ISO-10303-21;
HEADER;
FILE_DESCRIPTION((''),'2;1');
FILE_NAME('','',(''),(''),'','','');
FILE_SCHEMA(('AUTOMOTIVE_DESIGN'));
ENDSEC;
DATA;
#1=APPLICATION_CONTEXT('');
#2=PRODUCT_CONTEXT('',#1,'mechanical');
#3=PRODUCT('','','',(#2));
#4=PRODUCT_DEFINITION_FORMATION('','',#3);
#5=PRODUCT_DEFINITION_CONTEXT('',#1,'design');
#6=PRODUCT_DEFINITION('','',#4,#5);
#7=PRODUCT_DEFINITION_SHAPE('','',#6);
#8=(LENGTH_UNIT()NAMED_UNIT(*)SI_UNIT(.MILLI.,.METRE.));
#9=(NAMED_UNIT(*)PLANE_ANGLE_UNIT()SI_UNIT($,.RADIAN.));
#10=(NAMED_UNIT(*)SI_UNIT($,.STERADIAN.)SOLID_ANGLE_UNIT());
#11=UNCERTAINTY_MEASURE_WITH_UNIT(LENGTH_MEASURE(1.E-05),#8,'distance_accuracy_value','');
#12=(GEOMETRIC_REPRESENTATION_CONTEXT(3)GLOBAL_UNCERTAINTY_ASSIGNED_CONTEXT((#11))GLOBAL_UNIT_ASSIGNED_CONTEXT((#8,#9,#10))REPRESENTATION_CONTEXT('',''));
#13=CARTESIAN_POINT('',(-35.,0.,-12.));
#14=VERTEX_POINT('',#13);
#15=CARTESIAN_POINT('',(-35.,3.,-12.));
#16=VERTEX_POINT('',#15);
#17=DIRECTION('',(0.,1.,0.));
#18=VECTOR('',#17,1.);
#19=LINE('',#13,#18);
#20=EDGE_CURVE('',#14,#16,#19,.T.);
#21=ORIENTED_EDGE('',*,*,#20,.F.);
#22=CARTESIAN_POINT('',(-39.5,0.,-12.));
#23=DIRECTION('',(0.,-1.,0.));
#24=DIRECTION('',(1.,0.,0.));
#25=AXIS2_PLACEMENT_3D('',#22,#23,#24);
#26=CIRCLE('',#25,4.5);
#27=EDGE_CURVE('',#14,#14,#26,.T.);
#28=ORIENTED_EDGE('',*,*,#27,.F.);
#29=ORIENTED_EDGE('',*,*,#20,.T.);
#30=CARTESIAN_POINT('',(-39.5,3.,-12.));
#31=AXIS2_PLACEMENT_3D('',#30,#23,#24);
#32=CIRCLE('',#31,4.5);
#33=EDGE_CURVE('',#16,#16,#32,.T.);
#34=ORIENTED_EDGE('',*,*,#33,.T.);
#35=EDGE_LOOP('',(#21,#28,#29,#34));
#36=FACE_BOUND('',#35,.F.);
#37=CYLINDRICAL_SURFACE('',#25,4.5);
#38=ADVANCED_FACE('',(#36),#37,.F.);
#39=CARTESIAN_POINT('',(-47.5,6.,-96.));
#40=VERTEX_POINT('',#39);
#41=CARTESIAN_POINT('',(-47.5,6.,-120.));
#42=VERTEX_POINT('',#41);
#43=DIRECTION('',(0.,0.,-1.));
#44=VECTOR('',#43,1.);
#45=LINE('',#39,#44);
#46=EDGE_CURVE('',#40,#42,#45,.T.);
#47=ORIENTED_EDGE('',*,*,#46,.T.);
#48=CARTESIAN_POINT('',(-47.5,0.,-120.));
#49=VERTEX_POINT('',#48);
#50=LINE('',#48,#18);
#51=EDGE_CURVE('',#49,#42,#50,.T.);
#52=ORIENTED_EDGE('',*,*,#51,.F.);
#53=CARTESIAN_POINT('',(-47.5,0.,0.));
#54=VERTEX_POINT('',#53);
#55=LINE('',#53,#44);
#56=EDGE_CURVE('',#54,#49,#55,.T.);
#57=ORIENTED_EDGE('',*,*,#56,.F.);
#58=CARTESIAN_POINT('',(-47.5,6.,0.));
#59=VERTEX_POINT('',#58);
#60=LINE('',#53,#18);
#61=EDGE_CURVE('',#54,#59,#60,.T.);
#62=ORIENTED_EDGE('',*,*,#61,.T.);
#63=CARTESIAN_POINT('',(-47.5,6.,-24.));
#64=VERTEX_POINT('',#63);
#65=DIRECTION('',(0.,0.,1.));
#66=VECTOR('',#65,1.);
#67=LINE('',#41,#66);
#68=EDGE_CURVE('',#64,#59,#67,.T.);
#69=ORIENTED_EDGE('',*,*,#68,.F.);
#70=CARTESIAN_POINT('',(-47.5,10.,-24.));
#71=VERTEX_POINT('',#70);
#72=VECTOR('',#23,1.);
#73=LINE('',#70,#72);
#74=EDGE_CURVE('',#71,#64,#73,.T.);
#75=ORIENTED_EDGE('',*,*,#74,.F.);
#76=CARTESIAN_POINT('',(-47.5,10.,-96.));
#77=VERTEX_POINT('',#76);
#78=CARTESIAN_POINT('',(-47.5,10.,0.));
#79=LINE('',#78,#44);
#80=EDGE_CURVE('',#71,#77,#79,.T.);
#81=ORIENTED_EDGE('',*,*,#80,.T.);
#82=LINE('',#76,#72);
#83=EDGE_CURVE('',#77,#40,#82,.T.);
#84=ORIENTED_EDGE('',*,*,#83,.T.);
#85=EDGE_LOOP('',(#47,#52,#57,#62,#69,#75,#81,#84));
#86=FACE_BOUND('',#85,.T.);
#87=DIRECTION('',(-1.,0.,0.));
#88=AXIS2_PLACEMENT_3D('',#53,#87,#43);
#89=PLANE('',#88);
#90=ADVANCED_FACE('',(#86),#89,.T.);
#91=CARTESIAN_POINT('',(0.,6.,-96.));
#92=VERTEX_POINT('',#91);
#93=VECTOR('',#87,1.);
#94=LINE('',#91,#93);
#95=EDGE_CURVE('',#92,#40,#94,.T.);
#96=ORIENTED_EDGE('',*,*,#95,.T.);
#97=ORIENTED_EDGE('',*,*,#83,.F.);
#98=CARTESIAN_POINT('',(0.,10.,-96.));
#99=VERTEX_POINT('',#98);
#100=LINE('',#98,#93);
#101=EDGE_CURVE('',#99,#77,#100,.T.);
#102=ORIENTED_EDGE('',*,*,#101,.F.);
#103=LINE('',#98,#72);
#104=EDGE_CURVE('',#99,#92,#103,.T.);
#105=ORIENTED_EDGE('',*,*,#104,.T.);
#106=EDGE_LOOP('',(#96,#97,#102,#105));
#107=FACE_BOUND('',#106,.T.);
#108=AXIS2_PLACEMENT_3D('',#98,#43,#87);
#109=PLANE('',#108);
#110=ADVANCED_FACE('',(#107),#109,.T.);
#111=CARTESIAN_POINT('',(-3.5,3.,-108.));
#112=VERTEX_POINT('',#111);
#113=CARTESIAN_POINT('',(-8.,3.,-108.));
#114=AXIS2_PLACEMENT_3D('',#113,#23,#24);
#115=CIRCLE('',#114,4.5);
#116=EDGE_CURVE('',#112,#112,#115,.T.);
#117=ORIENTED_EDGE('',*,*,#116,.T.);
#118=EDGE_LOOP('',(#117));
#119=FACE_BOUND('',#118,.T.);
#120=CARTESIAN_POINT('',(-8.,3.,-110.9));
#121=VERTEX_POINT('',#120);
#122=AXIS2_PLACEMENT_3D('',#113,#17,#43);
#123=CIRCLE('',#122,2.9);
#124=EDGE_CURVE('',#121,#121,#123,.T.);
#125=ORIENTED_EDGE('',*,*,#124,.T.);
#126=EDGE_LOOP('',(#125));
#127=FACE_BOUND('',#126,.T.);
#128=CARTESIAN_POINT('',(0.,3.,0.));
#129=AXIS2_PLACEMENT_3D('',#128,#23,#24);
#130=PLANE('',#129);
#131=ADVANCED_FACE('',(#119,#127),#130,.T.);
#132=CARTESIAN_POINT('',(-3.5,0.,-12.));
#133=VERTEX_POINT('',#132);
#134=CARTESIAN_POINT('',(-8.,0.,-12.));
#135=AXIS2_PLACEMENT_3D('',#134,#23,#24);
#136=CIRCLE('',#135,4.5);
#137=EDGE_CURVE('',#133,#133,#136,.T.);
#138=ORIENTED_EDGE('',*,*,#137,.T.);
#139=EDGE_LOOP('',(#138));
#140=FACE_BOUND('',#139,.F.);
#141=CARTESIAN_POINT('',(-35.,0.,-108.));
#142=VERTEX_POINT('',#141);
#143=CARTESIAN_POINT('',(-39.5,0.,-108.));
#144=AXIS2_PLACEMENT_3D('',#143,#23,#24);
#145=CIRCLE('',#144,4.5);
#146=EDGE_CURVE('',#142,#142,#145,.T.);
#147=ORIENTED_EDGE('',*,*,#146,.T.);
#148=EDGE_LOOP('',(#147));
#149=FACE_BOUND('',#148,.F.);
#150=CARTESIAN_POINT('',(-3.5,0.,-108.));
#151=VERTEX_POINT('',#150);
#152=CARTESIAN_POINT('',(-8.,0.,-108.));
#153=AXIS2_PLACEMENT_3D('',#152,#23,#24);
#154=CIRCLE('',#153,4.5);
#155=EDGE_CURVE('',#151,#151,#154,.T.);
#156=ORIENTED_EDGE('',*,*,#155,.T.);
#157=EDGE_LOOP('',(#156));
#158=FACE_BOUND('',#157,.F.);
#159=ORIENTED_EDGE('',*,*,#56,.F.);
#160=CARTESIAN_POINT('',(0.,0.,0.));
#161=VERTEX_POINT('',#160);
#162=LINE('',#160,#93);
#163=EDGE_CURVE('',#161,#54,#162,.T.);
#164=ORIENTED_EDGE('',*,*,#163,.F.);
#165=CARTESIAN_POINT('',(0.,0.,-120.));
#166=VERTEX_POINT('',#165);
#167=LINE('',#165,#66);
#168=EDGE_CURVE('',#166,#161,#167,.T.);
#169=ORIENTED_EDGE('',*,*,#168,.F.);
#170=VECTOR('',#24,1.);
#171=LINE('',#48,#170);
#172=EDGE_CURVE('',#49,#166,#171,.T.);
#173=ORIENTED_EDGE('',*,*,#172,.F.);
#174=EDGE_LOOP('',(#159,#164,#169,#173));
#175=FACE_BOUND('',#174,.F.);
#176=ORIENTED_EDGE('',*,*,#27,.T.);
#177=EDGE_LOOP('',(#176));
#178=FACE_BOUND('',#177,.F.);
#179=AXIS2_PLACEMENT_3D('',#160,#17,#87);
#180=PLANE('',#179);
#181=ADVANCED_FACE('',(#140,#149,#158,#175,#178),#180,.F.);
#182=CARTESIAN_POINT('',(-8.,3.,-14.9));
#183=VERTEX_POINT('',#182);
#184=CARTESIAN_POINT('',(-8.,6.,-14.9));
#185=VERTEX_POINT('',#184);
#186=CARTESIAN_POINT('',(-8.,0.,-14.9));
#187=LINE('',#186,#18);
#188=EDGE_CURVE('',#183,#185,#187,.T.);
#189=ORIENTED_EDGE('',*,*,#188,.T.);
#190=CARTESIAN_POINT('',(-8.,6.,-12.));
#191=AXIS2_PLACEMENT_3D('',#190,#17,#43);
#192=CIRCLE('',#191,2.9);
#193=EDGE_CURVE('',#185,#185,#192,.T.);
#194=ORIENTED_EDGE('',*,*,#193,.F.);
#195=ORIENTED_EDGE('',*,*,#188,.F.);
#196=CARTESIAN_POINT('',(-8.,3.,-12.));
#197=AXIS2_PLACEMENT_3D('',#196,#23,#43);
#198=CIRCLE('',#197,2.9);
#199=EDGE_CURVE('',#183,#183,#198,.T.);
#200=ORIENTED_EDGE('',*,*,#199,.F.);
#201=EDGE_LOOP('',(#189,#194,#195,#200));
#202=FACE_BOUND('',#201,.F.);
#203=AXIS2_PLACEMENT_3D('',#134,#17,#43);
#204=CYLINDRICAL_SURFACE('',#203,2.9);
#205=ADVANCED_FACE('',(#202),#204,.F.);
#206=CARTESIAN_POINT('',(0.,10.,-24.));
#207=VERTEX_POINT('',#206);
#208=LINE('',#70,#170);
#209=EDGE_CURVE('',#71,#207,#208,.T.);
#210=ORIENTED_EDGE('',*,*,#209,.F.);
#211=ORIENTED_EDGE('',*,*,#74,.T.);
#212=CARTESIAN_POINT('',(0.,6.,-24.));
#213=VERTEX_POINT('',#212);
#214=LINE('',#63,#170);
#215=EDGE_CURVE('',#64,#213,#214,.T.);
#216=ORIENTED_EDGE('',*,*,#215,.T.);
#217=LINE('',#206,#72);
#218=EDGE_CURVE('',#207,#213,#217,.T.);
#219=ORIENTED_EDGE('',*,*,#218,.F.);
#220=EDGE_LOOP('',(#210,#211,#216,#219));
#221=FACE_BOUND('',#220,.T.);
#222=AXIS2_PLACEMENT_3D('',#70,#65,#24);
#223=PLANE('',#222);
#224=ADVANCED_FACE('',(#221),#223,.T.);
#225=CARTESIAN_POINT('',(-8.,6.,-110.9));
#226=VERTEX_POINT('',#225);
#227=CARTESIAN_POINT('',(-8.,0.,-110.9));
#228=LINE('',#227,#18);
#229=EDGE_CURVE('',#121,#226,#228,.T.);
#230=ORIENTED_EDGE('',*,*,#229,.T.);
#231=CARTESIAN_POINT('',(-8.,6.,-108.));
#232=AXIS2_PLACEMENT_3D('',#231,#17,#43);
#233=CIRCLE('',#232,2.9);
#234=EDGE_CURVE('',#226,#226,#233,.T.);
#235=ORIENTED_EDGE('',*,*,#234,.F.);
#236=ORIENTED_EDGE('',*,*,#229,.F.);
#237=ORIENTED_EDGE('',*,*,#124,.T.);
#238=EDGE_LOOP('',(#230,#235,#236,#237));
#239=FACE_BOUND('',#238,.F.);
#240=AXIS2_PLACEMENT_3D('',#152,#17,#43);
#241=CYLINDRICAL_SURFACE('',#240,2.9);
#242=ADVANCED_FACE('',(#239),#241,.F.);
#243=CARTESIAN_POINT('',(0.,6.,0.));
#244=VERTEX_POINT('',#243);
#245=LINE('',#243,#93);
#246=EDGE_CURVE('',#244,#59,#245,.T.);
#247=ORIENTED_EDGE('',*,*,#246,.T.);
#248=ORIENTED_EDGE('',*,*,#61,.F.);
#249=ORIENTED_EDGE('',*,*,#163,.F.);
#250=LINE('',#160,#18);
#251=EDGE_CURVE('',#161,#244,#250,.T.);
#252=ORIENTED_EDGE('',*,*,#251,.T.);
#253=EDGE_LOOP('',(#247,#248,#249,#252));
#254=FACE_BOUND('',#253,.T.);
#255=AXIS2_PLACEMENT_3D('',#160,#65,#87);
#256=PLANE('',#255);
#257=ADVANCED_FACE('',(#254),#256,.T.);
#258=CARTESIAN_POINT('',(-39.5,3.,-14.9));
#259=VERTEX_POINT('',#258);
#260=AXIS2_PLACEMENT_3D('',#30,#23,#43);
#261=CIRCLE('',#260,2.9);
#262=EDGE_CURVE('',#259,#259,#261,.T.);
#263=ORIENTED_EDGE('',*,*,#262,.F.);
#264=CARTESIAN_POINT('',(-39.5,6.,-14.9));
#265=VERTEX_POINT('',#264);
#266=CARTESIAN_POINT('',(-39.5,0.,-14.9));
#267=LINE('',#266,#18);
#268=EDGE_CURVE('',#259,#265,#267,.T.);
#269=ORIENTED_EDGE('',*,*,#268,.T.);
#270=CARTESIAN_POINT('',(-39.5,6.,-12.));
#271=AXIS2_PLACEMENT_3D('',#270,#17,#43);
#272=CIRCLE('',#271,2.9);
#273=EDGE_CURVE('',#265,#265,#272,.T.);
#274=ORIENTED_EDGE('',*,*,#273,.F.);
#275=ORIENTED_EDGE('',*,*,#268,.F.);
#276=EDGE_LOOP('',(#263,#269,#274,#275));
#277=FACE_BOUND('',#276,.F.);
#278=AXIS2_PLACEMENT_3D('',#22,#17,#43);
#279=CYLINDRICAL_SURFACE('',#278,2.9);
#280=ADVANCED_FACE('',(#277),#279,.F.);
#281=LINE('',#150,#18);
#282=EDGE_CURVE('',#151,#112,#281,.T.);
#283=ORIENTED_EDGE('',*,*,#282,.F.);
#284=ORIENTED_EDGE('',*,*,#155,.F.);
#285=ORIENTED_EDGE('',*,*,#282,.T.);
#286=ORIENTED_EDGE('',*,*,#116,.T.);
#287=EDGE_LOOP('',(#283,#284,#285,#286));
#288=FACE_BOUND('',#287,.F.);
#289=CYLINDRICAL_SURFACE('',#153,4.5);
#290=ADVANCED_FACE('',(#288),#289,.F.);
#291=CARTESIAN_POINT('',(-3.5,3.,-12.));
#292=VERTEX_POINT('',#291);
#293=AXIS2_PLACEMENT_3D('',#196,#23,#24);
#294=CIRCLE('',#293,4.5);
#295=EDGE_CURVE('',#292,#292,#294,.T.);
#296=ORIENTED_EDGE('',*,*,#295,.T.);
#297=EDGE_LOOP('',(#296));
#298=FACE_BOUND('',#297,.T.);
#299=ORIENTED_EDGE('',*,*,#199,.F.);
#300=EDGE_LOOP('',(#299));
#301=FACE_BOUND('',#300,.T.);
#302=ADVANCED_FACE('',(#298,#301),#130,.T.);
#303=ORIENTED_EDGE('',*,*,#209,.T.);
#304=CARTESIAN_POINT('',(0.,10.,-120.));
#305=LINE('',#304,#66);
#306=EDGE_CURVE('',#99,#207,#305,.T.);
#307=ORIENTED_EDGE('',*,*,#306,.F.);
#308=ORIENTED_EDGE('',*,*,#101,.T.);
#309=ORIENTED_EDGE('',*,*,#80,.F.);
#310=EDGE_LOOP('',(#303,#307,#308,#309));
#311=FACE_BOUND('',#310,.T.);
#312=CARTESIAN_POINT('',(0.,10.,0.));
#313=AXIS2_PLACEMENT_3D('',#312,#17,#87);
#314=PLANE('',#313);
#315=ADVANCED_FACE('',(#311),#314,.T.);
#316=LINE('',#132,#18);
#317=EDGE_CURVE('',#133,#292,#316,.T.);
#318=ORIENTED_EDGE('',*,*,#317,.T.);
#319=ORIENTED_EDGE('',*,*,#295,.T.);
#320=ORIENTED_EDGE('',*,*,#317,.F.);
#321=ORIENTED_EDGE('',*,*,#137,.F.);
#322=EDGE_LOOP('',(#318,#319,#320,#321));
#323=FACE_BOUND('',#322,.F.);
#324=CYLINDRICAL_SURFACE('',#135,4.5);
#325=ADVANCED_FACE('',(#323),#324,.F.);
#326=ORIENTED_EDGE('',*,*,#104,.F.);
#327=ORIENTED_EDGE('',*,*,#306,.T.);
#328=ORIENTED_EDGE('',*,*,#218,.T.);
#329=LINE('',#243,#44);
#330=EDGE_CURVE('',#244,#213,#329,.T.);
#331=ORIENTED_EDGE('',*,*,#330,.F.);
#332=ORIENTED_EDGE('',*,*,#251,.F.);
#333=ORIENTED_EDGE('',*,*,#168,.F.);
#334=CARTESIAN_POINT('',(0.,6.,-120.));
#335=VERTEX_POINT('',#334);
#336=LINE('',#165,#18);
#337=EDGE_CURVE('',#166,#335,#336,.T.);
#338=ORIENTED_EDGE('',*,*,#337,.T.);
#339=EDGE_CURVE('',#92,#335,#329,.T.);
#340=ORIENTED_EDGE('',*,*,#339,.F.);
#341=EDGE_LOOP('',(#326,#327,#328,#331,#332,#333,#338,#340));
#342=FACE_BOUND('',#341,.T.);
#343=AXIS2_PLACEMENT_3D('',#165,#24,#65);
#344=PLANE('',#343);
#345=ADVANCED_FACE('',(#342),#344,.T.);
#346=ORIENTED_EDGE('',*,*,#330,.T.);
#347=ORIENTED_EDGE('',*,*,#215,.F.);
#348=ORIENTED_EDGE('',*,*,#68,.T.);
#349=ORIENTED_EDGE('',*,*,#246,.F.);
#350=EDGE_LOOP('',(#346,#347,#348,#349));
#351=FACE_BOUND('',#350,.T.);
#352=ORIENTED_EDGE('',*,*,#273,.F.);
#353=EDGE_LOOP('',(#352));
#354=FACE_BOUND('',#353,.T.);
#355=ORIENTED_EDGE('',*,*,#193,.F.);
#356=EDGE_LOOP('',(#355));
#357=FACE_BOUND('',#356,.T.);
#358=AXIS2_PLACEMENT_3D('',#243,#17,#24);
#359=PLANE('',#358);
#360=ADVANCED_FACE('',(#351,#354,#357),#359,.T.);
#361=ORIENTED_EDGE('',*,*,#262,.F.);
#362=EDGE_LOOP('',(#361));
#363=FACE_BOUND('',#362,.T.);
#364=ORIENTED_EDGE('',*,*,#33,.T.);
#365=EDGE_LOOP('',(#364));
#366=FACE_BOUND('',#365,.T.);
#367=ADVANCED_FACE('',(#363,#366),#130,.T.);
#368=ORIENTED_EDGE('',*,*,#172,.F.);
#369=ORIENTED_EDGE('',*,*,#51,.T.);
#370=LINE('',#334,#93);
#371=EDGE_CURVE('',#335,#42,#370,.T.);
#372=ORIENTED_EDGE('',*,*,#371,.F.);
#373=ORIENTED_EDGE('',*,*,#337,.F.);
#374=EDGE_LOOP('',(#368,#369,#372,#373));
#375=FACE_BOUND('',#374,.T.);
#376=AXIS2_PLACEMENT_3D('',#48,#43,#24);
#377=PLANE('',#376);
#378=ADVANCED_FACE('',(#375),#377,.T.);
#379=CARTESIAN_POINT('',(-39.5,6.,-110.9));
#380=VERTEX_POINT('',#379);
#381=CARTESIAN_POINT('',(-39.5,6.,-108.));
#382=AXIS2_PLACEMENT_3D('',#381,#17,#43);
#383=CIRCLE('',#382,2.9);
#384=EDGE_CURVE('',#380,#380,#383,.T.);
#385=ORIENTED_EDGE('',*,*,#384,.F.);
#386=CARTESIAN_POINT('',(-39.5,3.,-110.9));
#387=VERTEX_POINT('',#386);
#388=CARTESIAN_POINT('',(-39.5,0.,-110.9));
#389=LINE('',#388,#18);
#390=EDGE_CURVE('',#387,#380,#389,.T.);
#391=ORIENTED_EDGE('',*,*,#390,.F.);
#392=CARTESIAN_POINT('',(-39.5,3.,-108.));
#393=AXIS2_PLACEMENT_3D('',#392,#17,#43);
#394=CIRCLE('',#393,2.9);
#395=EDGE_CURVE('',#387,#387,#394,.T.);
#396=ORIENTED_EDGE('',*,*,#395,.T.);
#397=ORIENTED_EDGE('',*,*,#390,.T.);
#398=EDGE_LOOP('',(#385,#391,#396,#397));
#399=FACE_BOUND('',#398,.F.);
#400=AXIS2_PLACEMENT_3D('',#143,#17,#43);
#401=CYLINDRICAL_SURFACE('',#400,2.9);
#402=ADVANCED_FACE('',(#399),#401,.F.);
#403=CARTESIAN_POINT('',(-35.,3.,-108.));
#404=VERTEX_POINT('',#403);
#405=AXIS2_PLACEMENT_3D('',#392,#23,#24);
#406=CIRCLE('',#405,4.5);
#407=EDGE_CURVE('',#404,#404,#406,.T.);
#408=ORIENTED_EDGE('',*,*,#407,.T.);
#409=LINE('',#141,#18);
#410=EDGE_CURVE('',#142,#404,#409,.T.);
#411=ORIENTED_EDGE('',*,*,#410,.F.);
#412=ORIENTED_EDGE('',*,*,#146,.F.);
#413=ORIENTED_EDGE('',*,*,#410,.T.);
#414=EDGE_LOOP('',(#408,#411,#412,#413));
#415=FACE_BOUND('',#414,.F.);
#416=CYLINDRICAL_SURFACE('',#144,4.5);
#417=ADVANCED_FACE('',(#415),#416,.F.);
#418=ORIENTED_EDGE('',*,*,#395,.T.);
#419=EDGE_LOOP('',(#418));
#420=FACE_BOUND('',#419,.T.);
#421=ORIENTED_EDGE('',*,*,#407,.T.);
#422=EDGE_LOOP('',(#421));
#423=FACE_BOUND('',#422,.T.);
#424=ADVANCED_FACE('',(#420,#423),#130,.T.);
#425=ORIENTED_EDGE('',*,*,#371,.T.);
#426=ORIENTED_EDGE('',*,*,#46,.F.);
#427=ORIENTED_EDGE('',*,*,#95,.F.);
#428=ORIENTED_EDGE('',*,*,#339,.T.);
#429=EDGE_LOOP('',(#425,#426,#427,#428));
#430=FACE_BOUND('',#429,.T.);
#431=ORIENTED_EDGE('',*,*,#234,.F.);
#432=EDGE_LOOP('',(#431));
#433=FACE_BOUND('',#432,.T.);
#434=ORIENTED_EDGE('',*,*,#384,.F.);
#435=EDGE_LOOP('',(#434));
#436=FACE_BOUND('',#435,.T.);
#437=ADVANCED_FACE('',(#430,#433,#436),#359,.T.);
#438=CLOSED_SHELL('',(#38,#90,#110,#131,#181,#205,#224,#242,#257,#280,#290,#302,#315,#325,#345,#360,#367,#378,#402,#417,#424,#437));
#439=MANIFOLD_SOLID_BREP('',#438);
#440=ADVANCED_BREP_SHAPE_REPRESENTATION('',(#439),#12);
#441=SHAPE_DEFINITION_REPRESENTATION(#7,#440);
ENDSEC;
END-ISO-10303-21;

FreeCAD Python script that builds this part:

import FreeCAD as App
import Part
import Sketcher


def add_polygon(sketch, points):
    """Adds a closed chain of lines whose ends are joined by coincident constraints."""
    first, n = sketch.GeometryCount, len(points)
    for a, b in zip(points, points[1:] + points[:1]):
        sketch.addGeometry(Part.LineSegment(App.Vector(*a, 0), App.Vector(*b, 0)), False)
    for i in range(n):
        sketch.addConstraint(Sketcher.Constraint("Coincident", first + i, 2, first + (i + 1) % n, 1))

doc = App.newDocument("Part")
body = doc.addObject("PartDesign::Body", "Body")

# Sketch on XZ plane
sketch1 = body.newObject("Sketcher::SketchObject", "Sketch")
sketch1.AttachmentSupport = (doc.getObject("XZ_Plane"), [""])
sketch1.MapMode = "FlatFace"
add_polygon(sketch1, [(-48, 0), (0, 0), (0, -120), (-48, -120)])  # lines 0-3
sketch1.addConstraint([
    Sketcher.Constraint("Horizontal", 0),
    Sketcher.Constraint("Vertical", 1),
    Sketcher.Constraint("Horizontal", 2),
    Sketcher.Constraint("Vertical", 3),
    Sketcher.Constraint("Coincident", 0, 2, -1, 1),
    Sketcher.Constraint("DistanceY", 1, 2, 1, 1, 120.0),
    Sketcher.Constraint("DistanceX", 0, 1, 0, 2, 47.5),
])
pad1 = body.newObject("PartDesign::Pad", "Pad")
pad1.Profile = sketch1
pad1.Length = 10
pad1.Reversed = True

# Sketch on XZ plane
sketch2 = body.newObject("Sketcher::SketchObject", "Sketch001")
sketch2.AttachmentSupport = (doc.getObject("XZ_Plane"), [""])
sketch2.MapMode = "FlatFace"
sketch2.AttachmentOffset = App.Placement(App.Vector(0, 0, -10), App.Rotation())
add_polygon(sketch2, [(0, -96), (0, -120), (-48, -120), (-48, -96)])  # lines 0-3
add_polygon(sketch2, [(0, 0), (0, -24), (-48, -24), (-48, 0)])  # lines 4-7
sketch2.addConstraint([
    Sketcher.Constraint("Vertical", 0),
    Sketcher.Constraint("Horizontal", 1),
    Sketcher.Constraint("Vertical", 2),
    Sketcher.Constraint("Horizontal", 3),
    Sketcher.Constraint("Vertical", 4),
    Sketcher.Constraint("Horizontal", 5),
    Sketcher.Constraint("Vertical", 6),
    Sketcher.Constraint("Horizontal", 7),
    Sketcher.Constraint("Coincident", 7, 2, -1, 1),
    Sketcher.Constraint("PointOnObject", 0, 2, -2),
    Sketcher.Constraint("Vertical", 2, 2, 5, 2),
    Sketcher.Constraint("Equal", 2, 4),
    Sketcher.Constraint("DistanceY", 0, 2, 0, 1, 24.0),
    Sketcher.Constraint("DistanceY", 3, 2, 4, 2, 72.0),
    Sketcher.Constraint("DistanceX", 1, 2, 1, 1, 47.5),
])
pocket1 = body.newObject("PartDesign::Pocket", "Pocket")
pocket1.Profile = sketch2
pocket1.Length = 4
pocket1.Reversed = True

# Sketch on XZ plane
sketch3 = body.newObject("Sketcher::SketchObject", "Sketch002")
sketch3.AttachmentSupport = (doc.getObject("XZ_Plane"), [""])
sketch3.MapMode = "FlatFace"
sketch3.addGeometry([
    Part.Circle(App.Vector(-39.5, -12, 0), App.Vector(0, 0, 1), 2.9),
    Part.Circle(App.Vector(-8, -12, 0), App.Vector(0, 0, 1), 2.9),
    Part.Circle(App.Vector(-39.5, -108, 0), App.Vector(0, 0, 1), 2.9),
    Part.Circle(App.Vector(-8, -108, 0), App.Vector(0, 0, 1), 2.9),
], False)
sketch3.addConstraint([
    Sketcher.Constraint("Equal", 0, 1),
    Sketcher.Constraint("Equal", 1, 2),
    Sketcher.Constraint("Equal", 2, 3),
    Sketcher.Constraint("Horizontal", 0, 3, 1, 3),
    Sketcher.Constraint("Horizontal", 2, 3, 3, 3),
    Sketcher.Constraint("Vertical", 0, 3, 2, 3),
    Sketcher.Constraint("Vertical", 1, 3, 3, 3),
    Sketcher.Constraint("Diameter", 0, 5.8),
    Sketcher.Constraint("DistanceY", 0, 3, -1, 1, 12.0),
    Sketcher.Constraint("DistanceX", 1, 3, -1, 1, 8.0),
    Sketcher.Constraint("DistanceY", 2, 3, -1, 1, 108.0),
    Sketcher.Constraint("DistanceX", 0, 3, -1, 1, 39.5),
])
doc.recompute()
hole = body.newObject("PartDesign::Hole", "Hole")
hole.Profile = sketch3
hole.ThreadType = "None"
hole.Diameter = 5.8
hole.DepthType = "Dimension"
hole.Depth = 7
hole.DrillPoint = "Flat"

# Sketch on XZ plane
sketch4 = body.newObject("Sketcher::SketchObject", "Sketch003")
sketch4.AttachmentSupport = (doc.getObject("XZ_Plane"), [""])
sketch4.MapMode = "FlatFace"
sketch4.addGeometry([
    Part.Circle(App.Vector(-8, -12, 0), App.Vector(0, 0, 1), 4.5),  # 0
    Part.Circle(App.Vector(-8, -12, 0), App.Vector(0, 0, 1), 2.9),  # 1
    Part.Circle(App.Vector(-39.5, -12, 0), App.Vector(0, 0, 1), 4.5),  # 2
    Part.Circle(App.Vector(-39.5, -12, 0), App.Vector(0, 0, 1), 2.9),  # 3
    Part.Circle(App.Vector(-39.5, -108, 0), App.Vector(0, 0, 1), 4.5),  # 4
    Part.Circle(App.Vector(-39.5, -108, 0), App.Vector(0, 0, 1), 2.9),  # 5
    Part.Circle(App.Vector(-8, -108, 0), App.Vector(0, 0, 1), 4.5),  # 6
    Part.Circle(App.Vector(-8, -108, 0), App.Vector(0, 0, 1), 2.9),  # 7
], False)
sketch4.addConstraint([
    Sketcher.Constraint("Coincident", 1, 3, 0, 3),
    Sketcher.Constraint("Coincident", 3, 3, 2, 3),
    Sketcher.Constraint("Coincident", 5, 3, 4, 3),
    Sketcher.Constraint("Coincident", 7, 3, 6, 3),
    Sketcher.Constraint("Equal", 0, 2),
    Sketcher.Constraint("Equal", 1, 3),
    Sketcher.Constraint("Equal", 2, 4),
    Sketcher.Constraint("Equal", 3, 5),
    Sketcher.Constraint("Equal", 4, 6),
    Sketcher.Constraint("Equal", 5, 7),
    Sketcher.Constraint("Horizontal", 1, 3, 2, 3),
    Sketcher.Constraint("Horizontal", 5, 3, 6, 3),
    Sketcher.Constraint("Vertical", 3, 3, 4, 3),
    Sketcher.Constraint("Vertical", 1, 3, 6, 3),
    Sketcher.Constraint("Diameter", 0, 9.0),
    Sketcher.Constraint("Diameter", 1, 5.8),
    Sketcher.Constraint("DistanceX", 0, 3, -1, 1, 8.0),
    Sketcher.Constraint("DistanceY", 0, 3, -1, 1, 12.0),
    Sketcher.Constraint("DistanceY", 4, 3, -1, 1, 108.0),
    Sketcher.Constraint("DistanceX", 2, 3, -1, 1, 39.5),
])
pocket2 = body.newObject("PartDesign::Pocket", "Pocket001")
pocket2.Profile = sketch4
pocket2.Length = 3

doc.recompute()
